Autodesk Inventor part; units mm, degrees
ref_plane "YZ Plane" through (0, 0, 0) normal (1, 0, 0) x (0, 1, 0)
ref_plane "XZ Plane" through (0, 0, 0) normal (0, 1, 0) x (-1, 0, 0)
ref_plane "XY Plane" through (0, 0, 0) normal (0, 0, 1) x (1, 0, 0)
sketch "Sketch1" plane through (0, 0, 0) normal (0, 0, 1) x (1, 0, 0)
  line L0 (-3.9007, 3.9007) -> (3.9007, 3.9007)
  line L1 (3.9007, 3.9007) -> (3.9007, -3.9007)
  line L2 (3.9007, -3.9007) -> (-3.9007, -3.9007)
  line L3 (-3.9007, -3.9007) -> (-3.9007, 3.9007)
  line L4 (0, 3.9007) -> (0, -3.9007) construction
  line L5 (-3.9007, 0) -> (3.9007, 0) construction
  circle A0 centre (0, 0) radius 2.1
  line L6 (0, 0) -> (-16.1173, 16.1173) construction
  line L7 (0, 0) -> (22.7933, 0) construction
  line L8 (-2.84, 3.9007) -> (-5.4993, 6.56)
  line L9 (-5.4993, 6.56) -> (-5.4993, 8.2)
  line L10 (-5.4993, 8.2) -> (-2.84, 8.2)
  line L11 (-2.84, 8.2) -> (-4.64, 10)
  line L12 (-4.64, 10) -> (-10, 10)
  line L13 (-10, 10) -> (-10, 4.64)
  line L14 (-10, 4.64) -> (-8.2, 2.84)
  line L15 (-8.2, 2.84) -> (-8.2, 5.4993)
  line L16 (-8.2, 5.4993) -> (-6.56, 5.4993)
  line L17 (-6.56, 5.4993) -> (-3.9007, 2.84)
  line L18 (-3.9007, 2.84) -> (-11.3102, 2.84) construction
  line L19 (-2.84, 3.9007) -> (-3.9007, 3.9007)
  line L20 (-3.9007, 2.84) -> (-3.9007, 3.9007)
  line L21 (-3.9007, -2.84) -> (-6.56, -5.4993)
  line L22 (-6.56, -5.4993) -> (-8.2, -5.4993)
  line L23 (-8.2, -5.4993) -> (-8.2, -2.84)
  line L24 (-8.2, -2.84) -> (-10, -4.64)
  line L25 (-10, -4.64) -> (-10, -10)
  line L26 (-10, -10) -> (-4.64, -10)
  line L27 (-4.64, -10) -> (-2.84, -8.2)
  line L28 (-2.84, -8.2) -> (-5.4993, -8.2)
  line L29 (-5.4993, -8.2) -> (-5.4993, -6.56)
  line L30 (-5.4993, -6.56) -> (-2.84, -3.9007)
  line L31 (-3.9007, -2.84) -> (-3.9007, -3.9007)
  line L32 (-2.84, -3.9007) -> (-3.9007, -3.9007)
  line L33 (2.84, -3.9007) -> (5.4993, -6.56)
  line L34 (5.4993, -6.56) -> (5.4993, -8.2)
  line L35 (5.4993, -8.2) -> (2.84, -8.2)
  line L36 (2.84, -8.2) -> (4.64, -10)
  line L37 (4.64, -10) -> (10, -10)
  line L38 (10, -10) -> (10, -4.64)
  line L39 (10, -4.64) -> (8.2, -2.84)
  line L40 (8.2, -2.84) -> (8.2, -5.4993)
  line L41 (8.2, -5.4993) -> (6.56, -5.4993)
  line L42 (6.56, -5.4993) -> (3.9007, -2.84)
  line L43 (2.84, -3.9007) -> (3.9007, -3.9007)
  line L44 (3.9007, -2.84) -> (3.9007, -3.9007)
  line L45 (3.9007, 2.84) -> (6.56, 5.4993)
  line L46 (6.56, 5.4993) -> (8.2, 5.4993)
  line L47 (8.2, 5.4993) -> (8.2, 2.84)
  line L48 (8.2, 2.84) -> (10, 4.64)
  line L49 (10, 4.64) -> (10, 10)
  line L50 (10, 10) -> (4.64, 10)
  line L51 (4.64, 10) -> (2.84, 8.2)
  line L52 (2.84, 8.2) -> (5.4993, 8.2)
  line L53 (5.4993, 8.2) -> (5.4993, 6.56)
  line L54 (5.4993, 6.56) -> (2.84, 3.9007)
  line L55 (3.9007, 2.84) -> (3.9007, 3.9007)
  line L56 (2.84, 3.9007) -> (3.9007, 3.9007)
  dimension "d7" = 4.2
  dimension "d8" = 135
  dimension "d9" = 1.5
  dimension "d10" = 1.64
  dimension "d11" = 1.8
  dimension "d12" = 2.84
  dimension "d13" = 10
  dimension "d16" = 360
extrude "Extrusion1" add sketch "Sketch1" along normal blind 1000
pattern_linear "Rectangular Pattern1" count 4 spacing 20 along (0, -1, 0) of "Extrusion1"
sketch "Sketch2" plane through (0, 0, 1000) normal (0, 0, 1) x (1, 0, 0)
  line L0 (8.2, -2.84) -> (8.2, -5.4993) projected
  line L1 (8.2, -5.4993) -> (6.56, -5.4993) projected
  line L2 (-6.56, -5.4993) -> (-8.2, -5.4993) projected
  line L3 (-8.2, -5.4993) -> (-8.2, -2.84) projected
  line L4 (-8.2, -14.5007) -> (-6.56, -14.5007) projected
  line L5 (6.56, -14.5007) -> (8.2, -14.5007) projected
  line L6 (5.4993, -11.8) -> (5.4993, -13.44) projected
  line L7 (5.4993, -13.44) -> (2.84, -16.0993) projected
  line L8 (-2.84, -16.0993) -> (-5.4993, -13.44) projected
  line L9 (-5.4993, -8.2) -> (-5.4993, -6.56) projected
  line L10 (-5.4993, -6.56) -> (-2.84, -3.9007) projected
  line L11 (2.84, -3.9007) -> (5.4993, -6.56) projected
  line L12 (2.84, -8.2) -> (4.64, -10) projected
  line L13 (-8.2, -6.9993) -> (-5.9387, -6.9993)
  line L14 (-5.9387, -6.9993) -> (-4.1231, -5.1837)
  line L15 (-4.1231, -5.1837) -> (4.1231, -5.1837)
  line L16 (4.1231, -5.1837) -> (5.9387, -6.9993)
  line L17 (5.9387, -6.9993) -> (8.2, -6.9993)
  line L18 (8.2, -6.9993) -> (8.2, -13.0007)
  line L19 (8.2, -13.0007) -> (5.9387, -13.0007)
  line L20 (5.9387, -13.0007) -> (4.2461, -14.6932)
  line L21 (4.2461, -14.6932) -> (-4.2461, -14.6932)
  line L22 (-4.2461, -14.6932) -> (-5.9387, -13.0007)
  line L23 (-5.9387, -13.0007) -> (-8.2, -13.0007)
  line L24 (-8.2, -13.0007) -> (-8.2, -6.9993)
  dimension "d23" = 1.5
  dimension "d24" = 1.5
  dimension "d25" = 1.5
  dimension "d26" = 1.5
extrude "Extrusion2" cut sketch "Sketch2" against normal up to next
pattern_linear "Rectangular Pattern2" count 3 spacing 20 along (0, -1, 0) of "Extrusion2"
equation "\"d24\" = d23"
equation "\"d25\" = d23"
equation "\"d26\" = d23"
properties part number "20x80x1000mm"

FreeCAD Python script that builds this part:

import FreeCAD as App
import Part
import Sketcher


def add_polygon(sketch, points):
    """Adds a closed chain of lines whose ends are joined by coincident constraints."""
    first, n = sketch.GeometryCount, len(points)
    for a, b in zip(points, points[1:] + points[:1]):
        sketch.addGeometry(Part.LineSegment(App.Vector(*a, 0), App.Vector(*b, 0)), False)
    for i in range(n):
        sketch.addConstraint(Sketcher.Constraint("Coincident", first + i, 2, first + (i + 1) % n, 1))

doc = App.newDocument("Part")
body = doc.addObject("PartDesign::Body", "Body")

# Sketch on XY plane
sketch1 = doc.addObject("Sketcher::SketchObject", "Sketch")
body.addObject(sketch1)
sketch1.AttachmentSupport = (doc.XY_Plane, [""])
sketch1.MapMode = "FlatFace"
add_polygon(sketch1, [(-6.56, 5.4993), (-3.9007, 2.84), (-3.9007, -2.84), (-6.56, -5.4993), (-8.2, -5.4993), (-8.2, -2.84), (-10, -4.64), (-10, -10), (-4.64, -10), (-2.84, -8.2), (-5.4993, -8.2), (-5.4993, -6.56), (-2.84, -3.9007), (2.84, -3.9007), (5.4993, -6.56), (5.4993, -8.2), (2.84, -8.2), (4.64, -10), (10, -10), (10, -4.64), (8.2, -2.84), (8.2, -5.4993), (6.56, -5.4993), (3.9007, -2.84), (3.9007, 2.84), (6.56, 5.4993), (8.2, 5.4993), (8.2, 2.84), (10, 4.64), (10, 10), (4.64, 10), (2.84, 8.2), (5.4993, 8.2), (5.4993, 6.56), (2.84, 3.9007), (-2.84, 3.9007), (-5.4993, 6.56), (-5.4993, 8.2), (-2.84, 8.2), (-4.64, 10), (-10, 10), (-10, 4.64), (-8.2, 2.84), (-8.2, 5.4993)])  # lines 0-43
sketch1.addGeometry(Part.Circle(App.Vector(0, 0, 0), App.Vector(0, 0, 1), 2.1), False)  # 44
sketch1.addConstraint([
    Sketcher.Constraint("Vertical", 1),
    Sketcher.Constraint("Horizontal", 3),
    Sketcher.Constraint("Vertical", 4),
    Sketcher.Constraint("Vertical", 6),
    Sketcher.Constraint("Horizontal", 7),
    Sketcher.Constraint("Horizontal", 9),
    Sketcher.Constraint("Vertical", 10),
    Sketcher.Constraint("Horizontal", 12),
    Sketcher.Constraint("Vertical", 14),
    Sketcher.Constraint("Horizontal", 15),
    Sketcher.Constraint("Horizontal", 17),
    Sketcher.Constraint("Vertical", 18),
    Sketcher.Constraint("Vertical", 20),
    Sketcher.Constraint("Horizontal", 21),
    Sketcher.Constraint("Vertical", 23),
    Sketcher.Constraint("Horizontal", 25),
    Sketcher.Constraint("Vertical", 26),
    Sketcher.Constraint("Vertical", 28),
    Sketcher.Constraint("Horizontal", 29),
    Sketcher.Constraint("Horizontal", 31),
    Sketcher.Constraint("Vertical", 32),
    Sketcher.Constraint("Horizontal", 34),
    Sketcher.Constraint("Vertical", 36),
    Sketcher.Constraint("Horizontal", 37),
    Sketcher.Constraint("Horizontal", 39),
    Sketcher.Constraint("Vertical", 40),
    Sketcher.Constraint("Vertical", 42),
    Sketcher.Constraint("Horizontal", 43),
    Sketcher.Constraint("Coincident", 44, 3, -1, 1),
    Sketcher.Constraint("Symmetric", 0, 2, 22, 2, -1, 1),
    Sketcher.Constraint("Symmetric", 2, 2, 24, 2, -1, 1),
    Sketcher.Constraint("Symmetric", 4, 2, 26, 2, -1, 1),
    Sketcher.Constraint("Symmetric", 5, 2, 27, 2, -1, 1),
    Sketcher.Constraint("Symmetric", 7, 2, 29, 2, -1, 1),
    Sketcher.Constraint("Symmetric", 8, 2, 30, 2, -1, 1),
    Sketcher.Constraint("Symmetric", 10, 2, 32, 2, -1, 1),
    Sketcher.Constraint("Symmetric", 11, 2, 33, 2, -1, 1),
    Sketcher.Constraint("Symmetric", 13, 2, 35, 2, -1, 1),
    Sketcher.Constraint("Symmetric", 15, 2, 37, 2, -1, 1),
    Sketcher.Constraint("Symmetric", 16, 2, 38, 2, -1, 1),
    Sketcher.Constraint("Symmetric", 18, 2, 40, 2, -1, 1),
    Sketcher.Constraint("Symmetric", 19, 2, 41, 2, -1, 1),
    Sketcher.Constraint("Symmetric", 21, 2, 43, 2, -1, 1),
    Sketcher.Constraint("Symmetric", 10, 2, 13, 2, -2),
    Sketcher.Constraint("Symmetric", 8, 2, 15, 2, -2),
    Sketcher.Constraint("Symmetric", 7, 2, 16, 2, -2),
    Sketcher.Constraint("Symmetric", 5, 2, 18, 2, -2),
    Sketcher.Constraint("Symmetric", 4, 2, 19, 2, -2),
    Sketcher.Constraint("Symmetric", 2, 2, 21, 2, -2),
    Sketcher.Constraint("Perpendicular", 0, 2),
    Sketcher.Constraint("Parallel", 2, 5),
    Sketcher.Constraint("Parallel", 5, 8),
    Sketcher.Constraint("Parallel", 8, 11),
    Sketcher.Constraint("Perpendicular", 11, 13),
    Sketcher.Constraint("Parallel", 13, 16),
    Sketcher.Constraint("Perpendicular", 22, 24),
    Sketcher.Constraint("Perpendicular", 33, 35),
    Sketcher.Constraint("Horizontal", 1, 2, 4, 2),
    Sketcher.Constraint("Vertical", 8, 2, 11, 2),
    Sketcher.Constraint("Equal", 34, 1),
    Sketcher.Constraint("Equal", 37, 4),
    Sketcher.Constraint("Equal", 39, 6),
    Sketcher.Constraint("Equal", 43, 10),
    Sketcher.Constraint("Equal", 5, 8),
    Sketcher.Constraint("Diameter", 44, 4.2),
    Sketcher.Constraint("DistanceX", 5, 2, -1, 1, 10.0),
    Sketcher.Constraint("DistanceX", 3, 2, 3, 1, 1.64),
    Sketcher.Constraint("DistanceX", 5, 2, 3, 2, 1.8),
    Sketcher.Constraint("DistanceY", -1, 1, 0, 2, 2.84),
    Sketcher.Constraint("DistanceX", 9, 2, 9, 1, 2.6593),
])
pad1 = doc.addObject("PartDesign::Pad", "Pad")
body.addObject(pad1)
pad1.Profile = sketch1
pad1.Length = 1000
doc.recompute()

linearpattern = doc.addObject("PartDesign::LinearPattern", "LinearPattern")
body.addObject(linearpattern)
linearpattern.Originals = [pad1]
linearpattern.Direction = (doc.Y_Axis, [""])
linearpattern.Mode = "offset"
linearpattern.Offset = 20
linearpattern.Occurrences = 4
linearpattern.Reversed = True
body.Tip = linearpattern

# Sketch on XY plane
sketch2 = doc.addObject("Sketcher::SketchObject", "Sketch001")
body.addObject(sketch2)
sketch2.AttachmentSupport = (doc.XY_Plane, [""])
sketch2.MapMode = "FlatFace"
sketch2.AttachmentOffset = App.Placement(App.Vector(0, 0, 1000), App.Rotation())
add_polygon(sketch2, [(4.2461, -14.6932), (5.499337, -13.440037), (5.9387, -13.0007), (8.2, -13.0007), (8.2, -6.9993), (5.9387, -6.9993), (5.4993, -6.56), (4.1231, -5.1837), (-4.12305, -5.18375), (-5.49935, -6.55995), (-5.9387, -6.9993), (-8.2, -6.9993), (-8.2, -13.0007), (-5.9387, -13.0007), (-5.4993, -13.44), (-4.2461, -14.6932)])  # lines 0-15
sketch2.addConstraint([
    Sketcher.Constraint("Horizontal", 2),
    Sketcher.Constraint("Vertical", 3),
    Sketcher.Constraint("Horizontal", 4),
    Sketcher.Constraint("Horizontal", 7),
    Sketcher.Constraint("Horizontal", 10),
    Sketcher.Constraint("Vertical", 11),
    Sketcher.Constraint("Horizontal", 12),
    Sketcher.Constraint("Horizontal", 15),
    Sketcher.Constraint("Symmetric", 5, 2, 8, 2, -2),
    Sketcher.Constraint("Symmetric", 4, 2, 9, 2, -2),
    Sketcher.Constraint("Symmetric", 2, 2, 11, 2, -2),
    Sketcher.Constraint("Symmetric", 0, 2, 13, 2, -2),
    Sketcher.Constraint("Parallel", 0, 1),
    Sketcher.Constraint("Perpendicular", 1, 5),
    Sketcher.Constraint("Parallel", 5, 6),
    Sketcher.Constraint("Perpendicular", 6, 8),
    Sketcher.Constraint("Parallel", 8, 9),
    Sketcher.Constraint("Perpendicular", 9, 13),
    Sketcher.Constraint("Parallel", 13, 14),
    Sketcher.Constraint("Vertical", 1, 2, 4, 2),
    Sketcher.Constraint("Vertical", 0, 2, 5, 2),
    Sketcher.Constraint("DistanceX", -1, 1, 2, 2, 8.2),
    Sketcher.Constraint("DistanceY", 0, 2, -1, 1, 13.44),
    Sketcher.Constraint("DistanceY", 5, 2, -1, 1, 6.56),
    Sketcher.Constraint("DistanceX", 2, 1, 2, 2, 2.2613),
    Sketcher.Constraint("DistanceX", 7, 2, 7, 1, 8.2462),
    Sketcher.Constraint("DistanceX", 15, 1, 15, 2, 8.4922),
    Sketcher.Constraint("DistanceY", 3, 1, 3, 2, 6.0014),
])
pocket1 = doc.addObject("PartDesign::Pocket", "Pocket")
body.addObject(pocket1)
pocket1.Profile = sketch2
pocket1.Length = 1000
doc.recompute()

linearpattern2 = doc.addObject("PartDesign::LinearPattern", "LinearPattern001")
body.addObject(linearpattern2)
linearpattern2.Originals = [pocket1]
linearpattern2.Direction = (doc.Y_Axis, [""])
linearpattern2.Mode = "offset"
linearpattern2.Offset = 20
linearpattern2.Occurrences = 3
linearpattern2.Reversed = True
body.Tip = linearpattern2

doc.recompute()
